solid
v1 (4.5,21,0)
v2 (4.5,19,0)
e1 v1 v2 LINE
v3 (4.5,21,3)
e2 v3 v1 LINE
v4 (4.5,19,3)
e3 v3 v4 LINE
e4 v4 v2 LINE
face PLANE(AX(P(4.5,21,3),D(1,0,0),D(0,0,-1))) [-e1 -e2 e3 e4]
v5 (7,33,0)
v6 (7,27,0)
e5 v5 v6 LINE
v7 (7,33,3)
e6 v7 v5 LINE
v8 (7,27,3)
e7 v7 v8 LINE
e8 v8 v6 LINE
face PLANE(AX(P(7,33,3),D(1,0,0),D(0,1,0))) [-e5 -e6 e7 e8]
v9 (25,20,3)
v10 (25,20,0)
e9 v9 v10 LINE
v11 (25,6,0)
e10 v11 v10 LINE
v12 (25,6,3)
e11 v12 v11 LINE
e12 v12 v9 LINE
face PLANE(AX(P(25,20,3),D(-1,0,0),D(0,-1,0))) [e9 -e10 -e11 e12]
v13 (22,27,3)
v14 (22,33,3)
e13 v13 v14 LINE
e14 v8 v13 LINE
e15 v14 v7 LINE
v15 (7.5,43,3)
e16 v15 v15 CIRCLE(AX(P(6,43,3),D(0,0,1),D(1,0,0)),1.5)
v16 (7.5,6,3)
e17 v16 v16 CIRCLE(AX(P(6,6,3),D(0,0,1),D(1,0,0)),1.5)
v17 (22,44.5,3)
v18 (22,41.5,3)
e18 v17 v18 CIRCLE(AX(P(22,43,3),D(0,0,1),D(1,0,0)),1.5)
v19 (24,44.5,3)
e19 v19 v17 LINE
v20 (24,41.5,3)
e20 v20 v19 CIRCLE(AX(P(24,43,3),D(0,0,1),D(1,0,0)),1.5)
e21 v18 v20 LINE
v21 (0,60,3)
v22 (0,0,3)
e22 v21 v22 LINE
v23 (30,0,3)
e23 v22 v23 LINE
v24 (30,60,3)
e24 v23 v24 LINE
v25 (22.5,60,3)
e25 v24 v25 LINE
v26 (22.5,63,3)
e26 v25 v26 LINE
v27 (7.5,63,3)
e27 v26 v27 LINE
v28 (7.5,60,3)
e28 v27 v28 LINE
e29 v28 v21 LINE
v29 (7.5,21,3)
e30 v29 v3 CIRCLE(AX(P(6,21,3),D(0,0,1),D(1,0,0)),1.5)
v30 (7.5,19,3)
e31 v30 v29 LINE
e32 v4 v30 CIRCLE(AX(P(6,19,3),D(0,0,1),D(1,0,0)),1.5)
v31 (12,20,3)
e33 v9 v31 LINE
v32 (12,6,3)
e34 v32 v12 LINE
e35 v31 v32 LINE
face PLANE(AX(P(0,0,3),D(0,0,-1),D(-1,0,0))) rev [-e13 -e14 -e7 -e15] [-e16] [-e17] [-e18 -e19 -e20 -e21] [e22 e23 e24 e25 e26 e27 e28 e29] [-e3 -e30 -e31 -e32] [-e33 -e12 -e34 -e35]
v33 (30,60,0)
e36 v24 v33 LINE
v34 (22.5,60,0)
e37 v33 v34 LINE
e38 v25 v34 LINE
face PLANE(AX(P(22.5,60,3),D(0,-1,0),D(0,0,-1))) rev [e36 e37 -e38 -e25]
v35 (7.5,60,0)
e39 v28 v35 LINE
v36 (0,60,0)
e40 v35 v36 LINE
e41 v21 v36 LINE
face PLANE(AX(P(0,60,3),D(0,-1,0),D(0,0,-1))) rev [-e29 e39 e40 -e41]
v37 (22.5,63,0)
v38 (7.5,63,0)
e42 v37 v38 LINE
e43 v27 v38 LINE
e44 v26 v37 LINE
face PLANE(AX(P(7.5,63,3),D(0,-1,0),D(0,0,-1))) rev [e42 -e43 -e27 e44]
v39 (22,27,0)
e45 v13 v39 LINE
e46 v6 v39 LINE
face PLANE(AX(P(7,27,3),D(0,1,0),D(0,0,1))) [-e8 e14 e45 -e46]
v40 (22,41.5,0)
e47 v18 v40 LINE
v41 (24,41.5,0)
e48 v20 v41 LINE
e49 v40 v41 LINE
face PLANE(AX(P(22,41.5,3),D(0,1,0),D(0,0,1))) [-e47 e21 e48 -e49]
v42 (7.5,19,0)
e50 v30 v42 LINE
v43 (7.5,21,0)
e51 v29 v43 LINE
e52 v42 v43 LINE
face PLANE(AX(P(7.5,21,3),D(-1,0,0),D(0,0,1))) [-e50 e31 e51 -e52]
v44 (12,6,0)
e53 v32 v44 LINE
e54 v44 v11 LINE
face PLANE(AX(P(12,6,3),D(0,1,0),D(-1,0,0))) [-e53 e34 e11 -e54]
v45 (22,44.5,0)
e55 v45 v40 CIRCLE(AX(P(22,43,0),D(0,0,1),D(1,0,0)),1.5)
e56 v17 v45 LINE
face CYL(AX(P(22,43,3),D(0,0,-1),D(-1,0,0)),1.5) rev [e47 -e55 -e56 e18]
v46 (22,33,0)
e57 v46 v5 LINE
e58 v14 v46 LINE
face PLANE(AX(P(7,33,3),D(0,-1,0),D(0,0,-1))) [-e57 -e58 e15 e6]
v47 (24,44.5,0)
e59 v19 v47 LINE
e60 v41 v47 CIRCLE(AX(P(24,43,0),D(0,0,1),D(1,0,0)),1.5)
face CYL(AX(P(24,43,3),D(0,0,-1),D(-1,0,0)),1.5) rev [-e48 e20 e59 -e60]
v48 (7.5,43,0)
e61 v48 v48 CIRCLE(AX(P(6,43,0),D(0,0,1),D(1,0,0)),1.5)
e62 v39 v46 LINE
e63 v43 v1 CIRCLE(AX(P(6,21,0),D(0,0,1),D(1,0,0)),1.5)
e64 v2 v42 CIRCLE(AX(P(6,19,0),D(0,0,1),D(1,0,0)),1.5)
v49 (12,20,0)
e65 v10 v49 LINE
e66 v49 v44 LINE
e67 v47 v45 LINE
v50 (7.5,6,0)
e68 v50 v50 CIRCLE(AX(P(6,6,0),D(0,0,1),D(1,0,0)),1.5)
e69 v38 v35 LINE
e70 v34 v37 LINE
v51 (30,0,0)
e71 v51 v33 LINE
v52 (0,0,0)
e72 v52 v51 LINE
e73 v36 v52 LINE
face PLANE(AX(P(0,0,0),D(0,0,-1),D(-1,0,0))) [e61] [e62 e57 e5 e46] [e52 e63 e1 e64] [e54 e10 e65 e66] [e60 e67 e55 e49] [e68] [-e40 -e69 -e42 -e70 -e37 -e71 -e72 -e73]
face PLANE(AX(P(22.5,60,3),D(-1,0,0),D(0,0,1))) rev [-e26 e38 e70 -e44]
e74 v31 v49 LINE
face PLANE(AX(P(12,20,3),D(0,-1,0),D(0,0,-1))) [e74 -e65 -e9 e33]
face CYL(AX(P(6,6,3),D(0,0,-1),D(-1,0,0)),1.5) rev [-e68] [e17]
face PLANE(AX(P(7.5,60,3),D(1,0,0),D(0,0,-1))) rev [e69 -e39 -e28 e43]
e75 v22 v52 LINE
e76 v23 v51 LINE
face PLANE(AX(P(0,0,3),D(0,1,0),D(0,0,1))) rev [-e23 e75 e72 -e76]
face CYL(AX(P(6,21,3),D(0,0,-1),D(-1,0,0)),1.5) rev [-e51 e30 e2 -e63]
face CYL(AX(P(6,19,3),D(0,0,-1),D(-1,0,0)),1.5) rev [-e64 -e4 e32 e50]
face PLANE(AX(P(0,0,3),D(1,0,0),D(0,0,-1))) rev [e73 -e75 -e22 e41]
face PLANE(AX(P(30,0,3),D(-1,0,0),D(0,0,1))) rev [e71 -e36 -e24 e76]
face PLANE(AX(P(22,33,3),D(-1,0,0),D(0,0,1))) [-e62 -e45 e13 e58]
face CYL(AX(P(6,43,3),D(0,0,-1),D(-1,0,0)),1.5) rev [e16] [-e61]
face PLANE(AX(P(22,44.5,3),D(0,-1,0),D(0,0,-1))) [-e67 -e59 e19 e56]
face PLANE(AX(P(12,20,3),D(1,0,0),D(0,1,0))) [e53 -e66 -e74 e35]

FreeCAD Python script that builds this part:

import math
import FreeCAD as App
import Part
import Sketcher
from FreeCAD import Vector
Q = App.Units.Quantity


def add_polygon(sketch, points):
    """Adds a closed chain of lines whose ends are joined by coincident constraints."""
    first, n = sketch.GeometryCount, len(points)
    for a, b in zip(points, points[1:] + points[:1]):
        sketch.addGeometry(Part.LineSegment(App.Vector(*a, 0), App.Vector(*b, 0)), False)
    for i in range(n):
        sketch.addConstraint(Sketcher.Constraint("Coincident", first + i, 2, first + (i + 1) % n, 1))

doc = App.newDocument("Part")
body = doc.addObject("PartDesign::Body", "Body")

sketch1 = body.newObject("Sketcher::SketchObject", "Sketch")
sketch1.AttachmentSupport = (doc.getObject("XY_Plane"), [""])
sketch1.MapMode = "FlatFace"
add_polygon(sketch1, [(0, 0), (30, 0), (30, 60), (22.5, 60), (22.5, 63), (7.5, 63), (7.5, 60), (0, 60)])
sketch1.addGeometry(Part.Circle(Vector(6, 6, 0), Vector(0, 0, 1), 1.5), False)
sketch1.addGeometry(Part.ArcOfCircle(Part.Circle(Vector(6, 21, 0), Vector(0, 0, 1), 1.5), math.radians(0), math.radians(180)), False)
sketch1.addGeometry(Part.LineSegment(Vector(7.5, 21, 0), Vector(7.5, 19, 0)), False)
sketch1.addGeometry(Part.ArcOfCircle(Part.Circle(Vector(6, 19, 0), Vector(0, 0, 1), 1.5), math.radians(180), math.radians(360)), False)
sketch1.addGeometry(Part.LineSegment(Vector(4.5, 19, 0), Vector(4.5, 21, 0)), False)
add_polygon(sketch1, [(25, 6), (12, 6), (12, 20), (25, 20)])
add_polygon(sketch1, [(22, 27), (7, 27), (7, 33), (22, 33)])
sketch1.addGeometry(Part.Circle(Vector(6, 43, 0), Vector(0, 0, 1), 1.5), False)
sketch1.addGeometry(Part.ArcOfCircle(Part.Circle(Vector(22, 43, 0), Vector(0, 0, 1), 1.5), math.radians(90), math.radians(270)), False)
sketch1.addGeometry(Part.LineSegment(Vector(22, 44.5, 0), Vector(24, 44.5, 0)), False)
sketch1.addGeometry(Part.ArcOfCircle(Part.Circle(Vector(24, 43, 0), Vector(0, 0, 1), 1.5), math.radians(-90), math.radians(90)), False)
sketch1.addGeometry(Part.LineSegment(Vector(24, 41.5, 0), Vector(22, 41.5, 0)), False)
sketch1.addConstraint([
    Sketcher.Constraint("Tangent", 9, 1, 10, 1),
    Sketcher.Constraint("Tangent", 10, 2, 11, 2),
    Sketcher.Constraint("Tangent", 11, 1, 12, 1),
    Sketcher.Constraint("Tangent", 12, 2, 9, 2),
    Sketcher.Constraint("Tangent", 22, 1, 23, 1),
    Sketcher.Constraint("Tangent", 23, 2, 24, 2),
    Sketcher.Constraint("Tangent", 24, 1, 25, 1),
    Sketcher.Constraint("Tangent", 25, 2, 22, 2),
    Sketcher.Constraint("Horizontal", 0),
    Sketcher.Constraint("Vertical", 1),
    Sketcher.Constraint("Horizontal", 2),
    Sketcher.Constraint("Vertical", 3),
    Sketcher.Constraint("Horizontal", 4),
    Sketcher.Constraint("Vertical", 5),
    Sketcher.Constraint("Horizontal", 6),
    Sketcher.Constraint("Vertical", 7),
    Sketcher.Constraint("Vertical", 10),
    Sketcher.Constraint("Vertical", 12),
    Sketcher.Constraint("Horizontal", 13),
    Sketcher.Constraint("Vertical", 14),
    Sketcher.Constraint("Horizontal", 15),
    Sketcher.Constraint("Vertical", 16),
    Sketcher.Constraint("Horizontal", 17),
    Sketcher.Constraint("Vertical", 18),
    Sketcher.Constraint("Horizontal", 19),
    Sketcher.Constraint("Vertical", 20),
    Sketcher.Constraint("Horizontal", 23),
    Sketcher.Constraint("Horizontal", 25),
    Sketcher.Constraint("Coincident", 7, 2, -1, 1),
    Sketcher.Constraint("Equal", 8, 9),
    Sketcher.Constraint("Equal", 11, 21),
    Sketcher.Constraint("Equal", 21, 22),
    Sketcher.Constraint("Horizontal", 21, 3, 22, 3),
    Sketcher.Constraint("Horizontal", 2, 2, 5, 2),
    Sketcher.Constraint("Horizontal", 8, 3, 13, 2),
    Sketcher.Constraint("Vertical", 8, 3, 9, 3),
    Sketcher.Constraint("Vertical", 11, 3, 21, 3),
    Sketcher.Constraint("Vertical", 5, 2, 9, 1),
    Sketcher.Constraint("Vertical", 22, 3, 19, 2),
    Sketcher.Constraint("Equal", 2, 6),
    Sketcher.Constraint("Equal", 4, 17),
    Sketcher.Constraint("Equal", 25, 10),
    Sketcher.Constraint("Diameter", 8, Q("3 mm")),
    Sketcher.Constraint("DistanceX", 0, 1, 0, 2, Q("30 mm")),
    Sketcher.Constraint("DistanceX", 4, 2, 4, 1, Q("15 mm")),
    Sketcher.Constraint("DistanceX", 13, 2, 13, 1, Q("13 mm")),
    Sketcher.Constraint("DistanceX", 23, 1, 23, 2, Q("2 mm")),
    Sketcher.Constraint("DistanceY", 1, 1, 1, 2, Q("60 mm")),
    Sketcher.Constraint("DistanceY", 3, 1, 3, 2, Q("3 mm")),
    Sketcher.Constraint("DistanceY", 14, 1, 14, 2, Q("14 mm")),
    Sketcher.Constraint("DistanceY", 18, 1, 18, 2, Q("6 mm")),
    Sketcher.Constraint("DistanceY", -1, 1, 8, 3, Q("6 mm")),
    Sketcher.Constraint("DistanceY", -1, 1, 9, 3, Q("21 mm")),
    Sketcher.Constraint("DistanceY", -1, 1, 21, 3, Q("43 mm")),
    Sketcher.Constraint("DistanceX", -1, 1, 22, 3, Q("22 mm")),
    Sketcher.Constraint("DistanceX", -1, 1, 13, 2, Q("12 mm")),
    Sketcher.Constraint("DistanceY", -1, 1, 17, 2, Q("27 mm")),
])
pad1 = body.newObject("PartDesign::Pad", "Pad")
pad1.Profile = sketch1
pad1.Length = 3

doc.recompute()
